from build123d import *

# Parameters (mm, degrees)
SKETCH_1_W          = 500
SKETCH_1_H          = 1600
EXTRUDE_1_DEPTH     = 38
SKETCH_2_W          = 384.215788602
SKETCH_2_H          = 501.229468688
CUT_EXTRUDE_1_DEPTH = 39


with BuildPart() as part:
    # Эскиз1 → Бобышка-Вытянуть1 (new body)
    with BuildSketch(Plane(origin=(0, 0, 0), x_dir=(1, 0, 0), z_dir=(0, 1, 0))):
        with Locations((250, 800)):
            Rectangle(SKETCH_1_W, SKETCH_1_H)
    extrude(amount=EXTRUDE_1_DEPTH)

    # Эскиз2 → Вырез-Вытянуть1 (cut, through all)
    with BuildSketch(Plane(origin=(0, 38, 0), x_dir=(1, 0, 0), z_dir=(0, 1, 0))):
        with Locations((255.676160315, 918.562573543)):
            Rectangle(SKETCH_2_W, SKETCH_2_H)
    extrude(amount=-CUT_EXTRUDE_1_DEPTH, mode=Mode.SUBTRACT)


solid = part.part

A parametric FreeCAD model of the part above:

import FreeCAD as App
import Part
import Sketcher


def add_polygon(sketch, points):
    """Adds a closed chain of lines whose ends are joined by coincident constraints."""
    first, n = sketch.GeometryCount, len(points)
    for a, b in zip(points, points[1:] + points[:1]):
        sketch.addGeometry(Part.LineSegment(App.Vector(*a, 0), App.Vector(*b, 0)), False)
    for i in range(n):
        sketch.addConstraint(Sketcher.Constraint("Coincident", first + i, 2, first + (i + 1) % n, 1))

doc = App.newDocument("Part")
body = doc.addObject("PartDesign::Body", "Body")

sketch1 = doc.addObject("Sketcher::SketchObject", "Sketch")
body.addObject(sketch1)
sketch1.AttachmentSupport = (doc.XZ_Plane, [""])
sketch1.MapMode = "FlatFace"
add_polygon(sketch1, [(0, -1600), (0, 0), (500, 0), (500, -1600)])
sketch1.addConstraint([
    Sketcher.Constraint("Vertical", 0),
    Sketcher.Constraint("Horizontal", 1),
    Sketcher.Constraint("Vertical", 2),
    Sketcher.Constraint("Horizontal", 3),
    Sketcher.Constraint("Coincident", 0, 2, -1, 1),
    Sketcher.Constraint("DistanceX", 1, 1, 1, 2, 500.0),
    Sketcher.Constraint("DistanceY", 0, 1, 0, 2, 1600.0),
])
pad1 = doc.addObject("PartDesign::Pad", "Pad")
body.addObject(pad1)
pad1.Profile = sketch1
pad1.Length = 38
pad1.Reversed = True

sketch2 = doc.addObject("Sketcher::SketchObject", "Sketch001")
body.addObject(sketch2)
sketch2.AttachmentSupport = (doc.XZ_Plane, [""])
sketch2.MapMode = "FlatFace"
sketch2.AttachmentOffset = App.Placement(App.Vector(0, 0, -38), App.Rotation())
add_polygon(sketch2, [(63.568266, -1169.177308), (63.568266, -667.947839), (447.784055, -667.947839), (447.784055, -1169.177308)])
sketch2.addConstraint([
    Sketcher.Constraint("Vertical", 0),
    Sketcher.Constraint("Horizontal", 1),
    Sketcher.Constraint("Vertical", 2),
    Sketcher.Constraint("Horizontal", 3),
    Sketcher.Constraint("DistanceX", 1, 1, 1, 2, 384.215789),
    Sketcher.Constraint("DistanceY", 0, 1, 0, 2, 501.229469),
    Sketcher.Constraint("DistanceY", 0, 2, -1, 1, 667.947839),
    Sketcher.Constraint("DistanceX", -1, 1, 0, 2, 63.568266),
])
pocket1 = doc.addObject("PartDesign::Pocket", "Pocket")
body.addObject(pocket1)
pocket1.Profile = sketch2
pocket1.Type = "ThroughAll"
pocket1.Reversed = True

doc.recompute()
